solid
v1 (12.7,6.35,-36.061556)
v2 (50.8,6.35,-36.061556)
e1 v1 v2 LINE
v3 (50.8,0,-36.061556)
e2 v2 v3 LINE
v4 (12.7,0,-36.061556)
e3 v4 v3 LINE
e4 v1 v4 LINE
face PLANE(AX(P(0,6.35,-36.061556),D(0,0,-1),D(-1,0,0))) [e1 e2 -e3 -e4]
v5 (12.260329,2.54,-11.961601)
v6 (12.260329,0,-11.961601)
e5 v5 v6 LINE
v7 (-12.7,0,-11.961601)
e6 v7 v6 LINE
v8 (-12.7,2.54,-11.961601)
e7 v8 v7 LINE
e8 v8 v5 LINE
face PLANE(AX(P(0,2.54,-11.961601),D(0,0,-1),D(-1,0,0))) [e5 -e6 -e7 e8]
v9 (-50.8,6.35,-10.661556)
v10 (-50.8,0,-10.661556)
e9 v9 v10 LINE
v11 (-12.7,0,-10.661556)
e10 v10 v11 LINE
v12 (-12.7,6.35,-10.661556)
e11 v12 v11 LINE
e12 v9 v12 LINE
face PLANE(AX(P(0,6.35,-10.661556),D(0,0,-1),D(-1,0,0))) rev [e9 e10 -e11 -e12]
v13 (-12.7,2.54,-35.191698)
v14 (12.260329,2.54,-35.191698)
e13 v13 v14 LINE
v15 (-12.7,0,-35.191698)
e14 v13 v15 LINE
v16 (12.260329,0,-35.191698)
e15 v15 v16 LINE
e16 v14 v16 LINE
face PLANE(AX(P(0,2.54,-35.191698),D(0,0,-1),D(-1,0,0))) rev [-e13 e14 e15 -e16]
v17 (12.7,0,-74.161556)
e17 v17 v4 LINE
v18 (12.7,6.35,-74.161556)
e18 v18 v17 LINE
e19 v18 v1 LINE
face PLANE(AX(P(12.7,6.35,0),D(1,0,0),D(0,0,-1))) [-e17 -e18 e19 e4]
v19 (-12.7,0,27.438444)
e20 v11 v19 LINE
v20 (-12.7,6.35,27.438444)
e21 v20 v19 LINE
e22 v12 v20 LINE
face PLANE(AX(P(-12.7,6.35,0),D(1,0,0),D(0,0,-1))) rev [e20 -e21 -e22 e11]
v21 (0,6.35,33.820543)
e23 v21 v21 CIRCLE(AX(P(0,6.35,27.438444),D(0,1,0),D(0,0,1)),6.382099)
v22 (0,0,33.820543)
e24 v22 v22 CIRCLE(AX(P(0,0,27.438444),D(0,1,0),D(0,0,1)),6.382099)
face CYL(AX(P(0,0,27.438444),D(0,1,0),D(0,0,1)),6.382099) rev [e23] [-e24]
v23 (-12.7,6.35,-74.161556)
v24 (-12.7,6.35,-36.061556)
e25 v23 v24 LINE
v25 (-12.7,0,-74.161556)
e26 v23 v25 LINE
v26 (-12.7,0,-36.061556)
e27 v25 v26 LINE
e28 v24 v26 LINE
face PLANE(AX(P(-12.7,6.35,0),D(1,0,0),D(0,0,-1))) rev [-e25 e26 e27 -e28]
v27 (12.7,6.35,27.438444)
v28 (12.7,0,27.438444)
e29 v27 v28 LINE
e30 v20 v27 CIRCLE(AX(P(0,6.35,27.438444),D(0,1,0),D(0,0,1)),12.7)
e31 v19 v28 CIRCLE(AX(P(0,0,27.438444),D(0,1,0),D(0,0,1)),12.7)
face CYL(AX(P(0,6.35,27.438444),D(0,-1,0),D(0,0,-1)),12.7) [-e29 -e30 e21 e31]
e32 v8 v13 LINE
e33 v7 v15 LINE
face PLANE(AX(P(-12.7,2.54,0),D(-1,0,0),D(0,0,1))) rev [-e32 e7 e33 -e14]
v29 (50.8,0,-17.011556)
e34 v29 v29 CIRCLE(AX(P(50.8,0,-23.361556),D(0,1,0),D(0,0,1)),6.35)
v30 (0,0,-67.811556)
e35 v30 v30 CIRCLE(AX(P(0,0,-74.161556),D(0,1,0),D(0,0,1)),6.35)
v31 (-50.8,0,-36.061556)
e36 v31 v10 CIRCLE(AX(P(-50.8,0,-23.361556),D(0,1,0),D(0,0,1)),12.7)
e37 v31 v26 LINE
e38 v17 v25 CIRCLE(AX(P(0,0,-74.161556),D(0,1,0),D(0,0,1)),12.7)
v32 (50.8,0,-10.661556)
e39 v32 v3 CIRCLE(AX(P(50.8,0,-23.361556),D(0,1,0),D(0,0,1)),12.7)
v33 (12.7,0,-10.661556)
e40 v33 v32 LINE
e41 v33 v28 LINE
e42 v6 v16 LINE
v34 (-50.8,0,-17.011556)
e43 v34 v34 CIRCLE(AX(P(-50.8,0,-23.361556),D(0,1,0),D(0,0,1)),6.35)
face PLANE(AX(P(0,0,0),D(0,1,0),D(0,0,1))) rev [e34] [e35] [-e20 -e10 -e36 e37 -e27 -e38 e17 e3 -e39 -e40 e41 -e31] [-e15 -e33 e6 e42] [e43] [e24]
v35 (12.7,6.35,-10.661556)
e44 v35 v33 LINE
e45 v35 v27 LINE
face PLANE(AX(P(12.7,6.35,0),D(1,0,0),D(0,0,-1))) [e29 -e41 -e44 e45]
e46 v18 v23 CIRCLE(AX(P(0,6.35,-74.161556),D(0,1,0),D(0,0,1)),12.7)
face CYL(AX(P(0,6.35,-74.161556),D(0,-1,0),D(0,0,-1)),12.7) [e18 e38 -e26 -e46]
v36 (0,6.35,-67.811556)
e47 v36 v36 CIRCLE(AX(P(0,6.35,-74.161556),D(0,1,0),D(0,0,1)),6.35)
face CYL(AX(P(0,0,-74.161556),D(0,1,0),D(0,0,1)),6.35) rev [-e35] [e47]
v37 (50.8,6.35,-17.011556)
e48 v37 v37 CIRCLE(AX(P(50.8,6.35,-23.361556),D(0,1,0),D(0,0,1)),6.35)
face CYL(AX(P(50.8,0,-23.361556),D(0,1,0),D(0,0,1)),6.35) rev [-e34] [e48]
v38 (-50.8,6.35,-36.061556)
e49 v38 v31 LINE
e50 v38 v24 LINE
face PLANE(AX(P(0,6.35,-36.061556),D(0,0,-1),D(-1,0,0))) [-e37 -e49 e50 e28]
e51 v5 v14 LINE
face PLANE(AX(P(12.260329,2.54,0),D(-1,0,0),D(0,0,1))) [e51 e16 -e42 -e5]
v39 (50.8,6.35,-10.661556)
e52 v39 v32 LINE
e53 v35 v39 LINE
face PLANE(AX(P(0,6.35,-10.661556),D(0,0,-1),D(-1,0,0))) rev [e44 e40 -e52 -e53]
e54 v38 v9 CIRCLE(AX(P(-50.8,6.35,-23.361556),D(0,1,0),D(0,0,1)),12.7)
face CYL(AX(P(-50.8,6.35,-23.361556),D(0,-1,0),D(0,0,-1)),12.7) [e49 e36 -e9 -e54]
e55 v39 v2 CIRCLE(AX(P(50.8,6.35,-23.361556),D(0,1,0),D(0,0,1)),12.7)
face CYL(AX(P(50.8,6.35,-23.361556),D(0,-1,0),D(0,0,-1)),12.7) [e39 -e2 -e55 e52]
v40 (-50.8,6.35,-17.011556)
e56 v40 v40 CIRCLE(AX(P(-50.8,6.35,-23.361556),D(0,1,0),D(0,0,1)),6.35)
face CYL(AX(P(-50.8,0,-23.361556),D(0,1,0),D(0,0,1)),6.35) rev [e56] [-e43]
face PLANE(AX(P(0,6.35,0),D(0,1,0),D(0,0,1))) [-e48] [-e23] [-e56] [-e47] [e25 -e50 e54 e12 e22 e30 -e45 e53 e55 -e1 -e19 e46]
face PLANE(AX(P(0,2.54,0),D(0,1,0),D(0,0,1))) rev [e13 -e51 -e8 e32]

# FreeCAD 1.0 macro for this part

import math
import FreeCAD as App
import Part
import Sketcher
Q = App.Units.Quantity


def add_polygon(sketch, points):
    """Adds a closed chain of lines whose ends are joined by coincident constraints."""
    first, n = sketch.GeometryCount, len(points)
    for a, b in zip(points, points[1:] + points[:1]):
        sketch.addGeometry(Part.LineSegment(App.Vector(*a, 0), App.Vector(*b, 0)), False)
    for i in range(n):
        sketch.addConstraint(Sketcher.Constraint("Coincident", first + i, 2, first + (i + 1) % n, 1))

doc = App.newDocument("Part")
body = doc.addObject("PartDesign::Body", "Body")

sketch1 = body.newObject("Sketcher::SketchObject", "Sketch")
sketch1.AttachmentSupport = (doc.getObject("XZ_Plane"), [""])
sketch1.MapMode = "FlatFace"
sketch1.addGeometry(Part.LineSegment(App.Vector(13, -36, 0), App.Vector(13, -74, 0)), False)
sketch1.addGeometry(Part.ArcOfCircle(Part.Circle(App.Vector(0, -74, 0), App.Vector(0, 0, 1), 13), math.radians(180), math.radians(360)), False)
sketch1.addGeometry(Part.LineSegment(App.Vector(-13, -74, 0), App.Vector(-13, -36, 0)), False)
sketch1.addGeometry(Part.LineSegment(App.Vector(-13, -36, 0), App.Vector(-51, -36, 0)), False)
sketch1.addGeometry(Part.ArcOfCircle(Part.Circle(App.Vector(-51, -23, 0), App.Vector(0, 0, 1), 13), math.radians(90), math.radians(270)), False)
sketch1.addGeometry(Part.LineSegment(App.Vector(-51, -11, 0), App.Vector(-13, -11, 0)), False)
sketch1.addGeometry(Part.LineSegment(App.Vector(-13, -11, 0), App.Vector(-13, 27, 0)), False)
sketch1.addGeometry(Part.ArcOfCircle(Part.Circle(App.Vector(0, 27, 0), App.Vector(0, 0, 1), 13), math.radians(0), math.radians(180)), False)
sketch1.addGeometry(Part.LineSegment(App.Vector(13, 27, 0), App.Vector(13, -11, 0)), False)
sketch1.addGeometry(Part.LineSegment(App.Vector(13, -11, 0), App.Vector(51, -11, 0)), False)
sketch1.addGeometry(Part.ArcOfCircle(Part.Circle(App.Vector(51, -23, 0), App.Vector(0, 0, 1), 13), math.radians(-90), math.radians(90)), False)
sketch1.addGeometry(Part.LineSegment(App.Vector(51, -36, 0), App.Vector(13, -36, 0)), False)
sketch1.addConstraint(Sketcher.Constraint("Tangent", 0, 2, 1, 2))
sketch1.addConstraint(Sketcher.Constraint("Tangent", 1, 1, 2, 1))
sketch1.addConstraint(Sketcher.Constraint("Coincident", 2, 2, 3, 1))
sketch1.addConstraint(Sketcher.Constraint("Tangent", 3, 2, 4, 2))
sketch1.addConstraint(Sketcher.Constraint("Tangent", 4, 1, 5, 1))
sketch1.addConstraint(Sketcher.Constraint("Coincident", 5, 2, 6, 1))
sketch1.addConstraint(Sketcher.Constraint("Tangent", 6, 2, 7, 2))
sketch1.addConstraint(Sketcher.Constraint("Tangent", 7, 1, 8, 1))
sketch1.addConstraint(Sketcher.Constraint("Coincident", 8, 2, 9, 1))
sketch1.addConstraint(Sketcher.Constraint("Tangent", 9, 2, 10, 2))
sketch1.addConstraint(Sketcher.Constraint("Tangent", 10, 1, 11, 1))
sketch1.addConstraint(Sketcher.Constraint("Coincident", 11, 2, 0, 1))
sketch1.addConstraint(Sketcher.Constraint("Vertical", 0))
sketch1.addConstraint(Sketcher.Constraint("Vertical", 2))
sketch1.addConstraint(Sketcher.Constraint("Horizontal", 3))
sketch1.addConstraint(Sketcher.Constraint("Horizontal", 5))
sketch1.addConstraint(Sketcher.Constraint("Vertical", 6))
sketch1.addConstraint(Sketcher.Constraint("Vertical", 8))
sketch1.addConstraint(Sketcher.Constraint("Horizontal", 9))
sketch1.addConstraint(Sketcher.Constraint("Horizontal", 11))
sketch1.addConstraint(Sketcher.Constraint("Equal", 1, 4))
sketch1.addConstraint(Sketcher.Constraint("Equal", 4, 7))
sketch1.addConstraint(Sketcher.Constraint("Equal", 7, 10))
sketch1.addConstraint(Sketcher.Constraint("Symmetric", 4, 3, 10, 3, -2))
sketch1.addConstraint(Sketcher.Constraint("PointOnObject", 1, 3, -2))
sketch1.addConstraint(Sketcher.Constraint("PointOnObject", 7, 3, -2))
sketch1.addConstraint(Sketcher.Constraint("Equal", 11, 0))
sketch1.addConstraint(Sketcher.Constraint("Equal", 2, 6))
sketch1.addConstraint(Sketcher.Constraint("Radius", 1, Q("0.5 in")))
sketch1.addConstraint(Sketcher.Constraint("DistanceX", 3, 2, 3, 1, Q("1.5 in")))
sketch1.addConstraint(Sketcher.Constraint("DistanceY", 1, 3, -1, 1, Q("74.161556 mm")))
pad1 = body.newObject("PartDesign::Pad", "Pad")
pad1.Profile = sketch1
pad1.Length = Q("0.25 in")
pad1.Reversed = True

sketch2 = body.newObject("Sketcher::SketchObject", "Sketch001")
sketch2.AttachmentSupport = (doc.getObject("XZ_Plane"), [""])
sketch2.MapMode = "FlatFace"
sketch2.AttachmentOffset = App.Placement(App.Vector(0, 0, -0.25 * 25.4), App.Rotation())
sketch2.addGeometry(Part.Circle(App.Vector(0, -74, 0), App.Vector(0, 0, 1), 6), False)
sketch2.addGeometry(Part.Circle(App.Vector(-51, -23, 0), App.Vector(0, 0, 1), 6), False)
sketch2.addGeometry(Part.Circle(App.Vector(0, 27, 0), App.Vector(0, 0, 1), 6), False)
sketch2.addGeometry(Part.Circle(App.Vector(51, -23, 0), App.Vector(0, 0, 1), 6), False)
sketch2.addConstraint(Sketcher.Constraint("Equal", 0, 1))
sketch2.addConstraint(Sketcher.Constraint("Equal", 1, 3))
sketch2.addConstraint(Sketcher.Constraint("Symmetric", 1, 3, 3, 3, -2))
sketch2.addConstraint(Sketcher.Constraint("PointOnObject", 0, 3, -2))
sketch2.addConstraint(Sketcher.Constraint("PointOnObject", 2, 3, -2))
sketch2.addConstraint(Sketcher.Constraint("Diameter", 0, Q("0.5 in")))
sketch2.addConstraint(Sketcher.Constraint("DistanceX", 1, 3, -1, 1, Q("2 in")))
sketch2.addConstraint(Sketcher.Constraint("DistanceY", 0, 3, 1, 3, Q("2 in")))
sketch2.addConstraint(Sketcher.Constraint("DistanceY", 1, 3, 2, 3, Q("2 in")))
sketch2.addConstraint(Sketcher.Constraint("Diameter", 2, Q("12.764199 mm")))
sketch2.addConstraint(Sketcher.Constraint("DistanceY", 0, 3, -1, 1, Q("74.161556 mm")))
pocket1 = body.newObject("PartDesign::Pocket", "Pocket")
pocket1.Profile = sketch2
pocket1.Type = "ThroughAll"
pocket1.Reversed = True

sketch3 = body.newObject("Sketcher::SketchObject", "Sketch002")
sketch3.AttachmentSupport = (doc.getObject("XZ_Plane"), [""])
sketch3.MapMode = "FlatFace"
add_polygon(sketch3, [(-13, -35), (-13, -12), (12, -12), (12, -35)])
sketch3.addConstraint(Sketcher.Constraint("Vertical", 0))
sketch3.addConstraint(Sketcher.Constraint("Horizontal", 1))
sketch3.addConstraint(Sketcher.Constraint("Vertical", 2))
sketch3.addConstraint(Sketcher.Constraint("Horizontal", 3))
sketch3.addConstraint(Sketcher.Constraint("DistanceX", 0, 2, -1, 1, Q("0.5 in")))
sketch3.addConstraint(Sketcher.Constraint("DistanceY", 2, 2, -1, 1, Q("1.3854999 in")))
sketch3.addConstraint(Sketcher.Constraint("DistanceX", 1, 1, 1, 2, Q("24.960329 mm")))
sketch3.addConstraint(Sketcher.Constraint("DistanceY", 0, 2, -1, 1, Q("11.961601 mm")))
pocket2 = body.newObject("PartDesign::Pocket", "Pocket001")
pocket2.Profile = sketch3
pocket2.Length = Q("0.1 in")

doc.recompute()
